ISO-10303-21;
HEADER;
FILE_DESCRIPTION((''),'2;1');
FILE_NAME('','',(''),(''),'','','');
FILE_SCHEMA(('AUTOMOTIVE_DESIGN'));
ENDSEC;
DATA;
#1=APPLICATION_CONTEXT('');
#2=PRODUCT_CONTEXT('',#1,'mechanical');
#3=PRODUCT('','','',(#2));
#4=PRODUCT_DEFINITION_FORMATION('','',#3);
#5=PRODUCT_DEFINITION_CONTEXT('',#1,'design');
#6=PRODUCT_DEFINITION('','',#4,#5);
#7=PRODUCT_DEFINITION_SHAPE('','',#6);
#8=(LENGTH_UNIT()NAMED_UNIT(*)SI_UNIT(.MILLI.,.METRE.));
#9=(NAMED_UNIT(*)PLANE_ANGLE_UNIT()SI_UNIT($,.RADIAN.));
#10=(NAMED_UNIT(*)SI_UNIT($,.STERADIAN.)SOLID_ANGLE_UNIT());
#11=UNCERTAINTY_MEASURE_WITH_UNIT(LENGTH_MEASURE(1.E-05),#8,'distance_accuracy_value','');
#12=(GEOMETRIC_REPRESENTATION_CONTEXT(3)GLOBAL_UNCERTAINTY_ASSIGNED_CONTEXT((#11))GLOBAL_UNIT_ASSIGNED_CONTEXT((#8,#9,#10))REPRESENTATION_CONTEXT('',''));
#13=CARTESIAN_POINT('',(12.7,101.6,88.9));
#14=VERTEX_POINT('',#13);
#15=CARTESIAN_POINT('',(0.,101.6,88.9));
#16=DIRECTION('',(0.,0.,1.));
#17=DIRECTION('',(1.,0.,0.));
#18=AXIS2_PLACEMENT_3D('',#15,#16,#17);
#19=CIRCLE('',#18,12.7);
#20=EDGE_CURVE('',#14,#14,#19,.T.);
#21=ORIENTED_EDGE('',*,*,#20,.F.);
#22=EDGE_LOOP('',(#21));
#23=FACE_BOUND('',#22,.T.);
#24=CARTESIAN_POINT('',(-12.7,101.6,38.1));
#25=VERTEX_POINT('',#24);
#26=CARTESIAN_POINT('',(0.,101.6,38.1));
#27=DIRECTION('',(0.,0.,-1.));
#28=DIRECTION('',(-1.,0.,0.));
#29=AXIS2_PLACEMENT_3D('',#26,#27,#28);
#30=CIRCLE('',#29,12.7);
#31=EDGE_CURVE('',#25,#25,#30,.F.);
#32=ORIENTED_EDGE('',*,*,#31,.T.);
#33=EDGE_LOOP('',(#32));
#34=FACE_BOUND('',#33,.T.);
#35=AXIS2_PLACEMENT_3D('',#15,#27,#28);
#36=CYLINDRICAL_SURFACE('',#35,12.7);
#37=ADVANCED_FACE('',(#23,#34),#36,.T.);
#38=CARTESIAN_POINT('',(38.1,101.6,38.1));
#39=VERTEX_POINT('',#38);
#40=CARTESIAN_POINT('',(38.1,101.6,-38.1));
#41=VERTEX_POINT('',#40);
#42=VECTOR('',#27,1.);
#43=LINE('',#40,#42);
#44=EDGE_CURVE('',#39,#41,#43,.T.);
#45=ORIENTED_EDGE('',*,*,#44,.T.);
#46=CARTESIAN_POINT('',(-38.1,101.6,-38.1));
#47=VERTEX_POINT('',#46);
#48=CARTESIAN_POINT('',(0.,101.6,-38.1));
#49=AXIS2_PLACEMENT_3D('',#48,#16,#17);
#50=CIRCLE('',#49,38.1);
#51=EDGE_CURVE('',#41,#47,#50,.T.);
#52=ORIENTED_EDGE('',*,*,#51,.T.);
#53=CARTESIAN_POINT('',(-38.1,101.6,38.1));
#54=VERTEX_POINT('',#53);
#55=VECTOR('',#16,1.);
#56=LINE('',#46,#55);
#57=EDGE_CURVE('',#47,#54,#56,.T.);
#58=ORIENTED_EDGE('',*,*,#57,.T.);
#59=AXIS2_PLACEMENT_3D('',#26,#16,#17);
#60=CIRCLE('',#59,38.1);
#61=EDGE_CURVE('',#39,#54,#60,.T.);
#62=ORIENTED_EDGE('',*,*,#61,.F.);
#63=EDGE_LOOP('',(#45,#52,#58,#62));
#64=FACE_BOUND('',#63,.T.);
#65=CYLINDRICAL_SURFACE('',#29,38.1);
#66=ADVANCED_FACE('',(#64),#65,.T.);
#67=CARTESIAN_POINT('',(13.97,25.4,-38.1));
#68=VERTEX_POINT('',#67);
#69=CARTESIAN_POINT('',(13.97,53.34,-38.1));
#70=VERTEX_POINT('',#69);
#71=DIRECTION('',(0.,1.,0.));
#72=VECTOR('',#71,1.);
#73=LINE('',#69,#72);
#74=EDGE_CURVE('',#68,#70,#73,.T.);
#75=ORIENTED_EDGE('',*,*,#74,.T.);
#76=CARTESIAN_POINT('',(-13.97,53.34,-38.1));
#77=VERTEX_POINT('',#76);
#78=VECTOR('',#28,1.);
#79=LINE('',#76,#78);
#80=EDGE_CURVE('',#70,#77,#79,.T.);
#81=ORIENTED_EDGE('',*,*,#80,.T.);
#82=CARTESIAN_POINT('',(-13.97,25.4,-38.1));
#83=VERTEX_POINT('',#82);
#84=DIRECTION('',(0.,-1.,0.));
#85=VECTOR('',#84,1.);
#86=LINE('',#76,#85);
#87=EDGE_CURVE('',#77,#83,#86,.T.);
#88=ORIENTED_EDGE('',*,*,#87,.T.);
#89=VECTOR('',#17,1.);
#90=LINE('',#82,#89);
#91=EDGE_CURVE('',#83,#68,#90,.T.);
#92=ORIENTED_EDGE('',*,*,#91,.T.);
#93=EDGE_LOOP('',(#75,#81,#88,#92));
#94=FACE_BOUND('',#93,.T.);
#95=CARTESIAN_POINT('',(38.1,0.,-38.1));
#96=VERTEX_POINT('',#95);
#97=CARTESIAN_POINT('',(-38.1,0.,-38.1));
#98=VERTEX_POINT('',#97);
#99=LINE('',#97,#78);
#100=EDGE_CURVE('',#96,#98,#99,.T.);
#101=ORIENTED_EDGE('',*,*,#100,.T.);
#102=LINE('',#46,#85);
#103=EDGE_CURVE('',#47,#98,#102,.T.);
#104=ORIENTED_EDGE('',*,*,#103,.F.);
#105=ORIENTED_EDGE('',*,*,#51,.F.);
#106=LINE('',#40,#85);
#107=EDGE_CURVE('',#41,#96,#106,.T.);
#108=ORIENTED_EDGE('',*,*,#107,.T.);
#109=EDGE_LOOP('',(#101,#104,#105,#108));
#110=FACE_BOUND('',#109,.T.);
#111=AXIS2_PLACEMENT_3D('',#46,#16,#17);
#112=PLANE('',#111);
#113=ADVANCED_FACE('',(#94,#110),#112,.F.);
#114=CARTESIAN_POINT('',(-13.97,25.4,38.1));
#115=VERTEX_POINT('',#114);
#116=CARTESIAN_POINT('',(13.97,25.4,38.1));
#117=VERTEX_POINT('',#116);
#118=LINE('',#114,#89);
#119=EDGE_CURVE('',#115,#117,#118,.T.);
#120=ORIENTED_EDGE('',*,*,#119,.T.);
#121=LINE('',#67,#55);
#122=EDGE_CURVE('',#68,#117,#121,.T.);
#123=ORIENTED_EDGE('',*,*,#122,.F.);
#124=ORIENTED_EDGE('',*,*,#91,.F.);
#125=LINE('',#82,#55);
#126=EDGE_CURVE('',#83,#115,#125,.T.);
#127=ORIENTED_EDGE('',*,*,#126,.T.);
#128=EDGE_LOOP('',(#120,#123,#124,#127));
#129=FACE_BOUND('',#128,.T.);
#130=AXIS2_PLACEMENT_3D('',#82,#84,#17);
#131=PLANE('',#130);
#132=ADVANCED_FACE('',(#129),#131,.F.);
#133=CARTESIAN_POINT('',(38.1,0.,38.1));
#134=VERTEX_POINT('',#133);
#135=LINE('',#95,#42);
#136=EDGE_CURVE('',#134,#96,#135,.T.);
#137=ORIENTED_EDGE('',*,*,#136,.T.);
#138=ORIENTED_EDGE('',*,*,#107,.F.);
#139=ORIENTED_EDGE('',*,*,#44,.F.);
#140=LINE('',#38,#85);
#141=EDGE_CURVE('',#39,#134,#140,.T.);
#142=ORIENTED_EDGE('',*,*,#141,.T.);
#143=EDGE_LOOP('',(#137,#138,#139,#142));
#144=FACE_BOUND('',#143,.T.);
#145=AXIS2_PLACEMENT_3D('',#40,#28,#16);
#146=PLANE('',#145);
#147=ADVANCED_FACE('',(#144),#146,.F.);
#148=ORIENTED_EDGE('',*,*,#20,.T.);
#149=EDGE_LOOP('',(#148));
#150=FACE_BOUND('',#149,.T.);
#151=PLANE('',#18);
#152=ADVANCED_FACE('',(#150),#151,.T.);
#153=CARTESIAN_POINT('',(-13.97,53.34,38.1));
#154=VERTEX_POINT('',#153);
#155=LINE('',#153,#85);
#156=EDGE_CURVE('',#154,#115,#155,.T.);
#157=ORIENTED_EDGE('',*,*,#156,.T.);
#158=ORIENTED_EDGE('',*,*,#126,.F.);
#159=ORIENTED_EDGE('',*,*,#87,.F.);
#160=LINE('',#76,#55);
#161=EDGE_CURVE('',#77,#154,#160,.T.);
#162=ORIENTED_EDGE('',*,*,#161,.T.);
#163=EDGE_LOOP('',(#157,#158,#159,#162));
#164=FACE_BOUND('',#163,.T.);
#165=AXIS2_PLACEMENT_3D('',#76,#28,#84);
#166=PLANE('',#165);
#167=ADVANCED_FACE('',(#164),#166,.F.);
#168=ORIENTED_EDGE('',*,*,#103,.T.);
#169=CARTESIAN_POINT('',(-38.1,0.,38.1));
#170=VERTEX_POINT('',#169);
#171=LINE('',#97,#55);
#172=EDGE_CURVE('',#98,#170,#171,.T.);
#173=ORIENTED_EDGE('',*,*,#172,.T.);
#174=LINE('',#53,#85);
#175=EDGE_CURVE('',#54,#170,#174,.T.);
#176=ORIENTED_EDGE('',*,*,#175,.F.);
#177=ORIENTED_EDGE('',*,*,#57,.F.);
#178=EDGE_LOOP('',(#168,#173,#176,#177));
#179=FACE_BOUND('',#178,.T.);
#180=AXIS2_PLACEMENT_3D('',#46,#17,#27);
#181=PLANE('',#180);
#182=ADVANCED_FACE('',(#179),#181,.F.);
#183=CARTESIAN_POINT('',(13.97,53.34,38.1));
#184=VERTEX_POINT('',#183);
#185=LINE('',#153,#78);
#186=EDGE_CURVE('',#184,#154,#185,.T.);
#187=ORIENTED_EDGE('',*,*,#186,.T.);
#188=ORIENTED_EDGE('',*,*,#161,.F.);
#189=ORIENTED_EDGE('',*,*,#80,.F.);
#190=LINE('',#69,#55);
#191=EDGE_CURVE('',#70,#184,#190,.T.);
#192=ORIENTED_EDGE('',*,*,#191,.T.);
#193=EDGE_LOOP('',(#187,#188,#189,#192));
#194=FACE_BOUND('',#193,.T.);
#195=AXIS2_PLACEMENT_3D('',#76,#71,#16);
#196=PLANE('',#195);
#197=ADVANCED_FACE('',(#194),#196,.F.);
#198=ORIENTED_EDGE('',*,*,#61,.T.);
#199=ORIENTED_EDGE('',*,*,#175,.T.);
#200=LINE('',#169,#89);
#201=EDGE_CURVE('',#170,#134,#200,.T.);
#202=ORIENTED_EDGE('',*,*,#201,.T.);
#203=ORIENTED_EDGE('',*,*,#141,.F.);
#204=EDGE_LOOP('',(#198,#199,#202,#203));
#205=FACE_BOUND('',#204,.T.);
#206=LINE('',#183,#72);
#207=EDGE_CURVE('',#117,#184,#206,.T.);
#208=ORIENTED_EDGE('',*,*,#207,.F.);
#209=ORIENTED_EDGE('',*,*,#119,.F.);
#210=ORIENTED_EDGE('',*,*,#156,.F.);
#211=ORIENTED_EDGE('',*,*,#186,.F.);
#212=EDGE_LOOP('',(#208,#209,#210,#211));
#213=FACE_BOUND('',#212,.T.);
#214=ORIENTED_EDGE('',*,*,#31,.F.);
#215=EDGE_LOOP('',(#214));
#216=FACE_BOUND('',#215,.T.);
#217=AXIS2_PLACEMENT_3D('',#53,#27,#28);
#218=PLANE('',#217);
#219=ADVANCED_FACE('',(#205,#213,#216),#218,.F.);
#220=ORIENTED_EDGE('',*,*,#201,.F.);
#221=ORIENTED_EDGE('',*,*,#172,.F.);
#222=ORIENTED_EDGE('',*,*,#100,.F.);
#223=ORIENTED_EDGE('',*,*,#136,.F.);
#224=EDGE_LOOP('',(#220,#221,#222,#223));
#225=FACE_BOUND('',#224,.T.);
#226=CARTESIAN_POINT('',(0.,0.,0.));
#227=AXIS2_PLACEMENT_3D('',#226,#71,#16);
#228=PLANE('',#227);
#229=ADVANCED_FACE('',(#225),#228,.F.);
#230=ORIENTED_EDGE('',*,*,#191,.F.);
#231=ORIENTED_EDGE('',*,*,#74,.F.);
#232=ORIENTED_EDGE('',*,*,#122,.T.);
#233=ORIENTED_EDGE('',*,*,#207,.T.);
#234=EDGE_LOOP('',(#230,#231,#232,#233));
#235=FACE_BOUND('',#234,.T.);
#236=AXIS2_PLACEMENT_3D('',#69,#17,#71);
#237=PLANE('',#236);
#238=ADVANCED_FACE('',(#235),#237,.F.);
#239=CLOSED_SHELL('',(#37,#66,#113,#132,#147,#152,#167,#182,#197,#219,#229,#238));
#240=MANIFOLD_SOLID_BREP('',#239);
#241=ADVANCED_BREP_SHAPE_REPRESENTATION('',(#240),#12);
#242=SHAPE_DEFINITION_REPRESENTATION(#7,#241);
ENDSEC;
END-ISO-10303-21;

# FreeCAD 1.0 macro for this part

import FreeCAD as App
import Part
import Sketcher
from FreeCAD import Vector
Q = App.Units.Quantity

doc = App.newDocument("Part")
body = doc.addObject("PartDesign::Body", "Body")

# Sketch on XZ plane
sketch1 = doc.addObject("Sketcher::SketchObject", "Sketch")
body.addObject(sketch1)
sketch1.AttachmentSupport = (doc.XZ_Plane, [""])
sketch1.MapMode = "FlatFace"
sketch1.addGeometry(Part.LineSegment(Vector(-38, -38, 0), Vector(-38, 38, 0)), False)
sketch1.addGeometry(Part.LineSegment(Vector(-38, 38, 0), Vector(38, 38, 0)), False)
sketch1.addGeometry(Part.LineSegment(Vector(38, 38, 0), Vector(38, -38, 0)), False)
sketch1.addGeometry(Part.LineSegment(Vector(38, -38, 0), Vector(-38, -38, 0)), False)
sketch1.addConstraint(Sketcher.Constraint("Coincident", 0, 2, 1, 1))
sketch1.addConstraint(Sketcher.Constraint("Coincident", 1, 2, 2, 1))
sketch1.addConstraint(Sketcher.Constraint("Coincident", 2, 2, 3, 1))
sketch1.addConstraint(Sketcher.Constraint("Coincident", 3, 2, 0, 1))
sketch1.addConstraint(Sketcher.Constraint("Vertical", 0))
sketch1.addConstraint(Sketcher.Constraint("Horizontal", 1))
sketch1.addConstraint(Sketcher.Constraint("Vertical", 2))
sketch1.addConstraint(Sketcher.Constraint("Horizontal", 3))
sketch1.addConstraint(Sketcher.Constraint("Symmetric", 0, 2, 2, 2, -1, 1))
sketch1.addConstraint(Sketcher.Constraint("Equal", 3, 0))
sketch1.addConstraint(Sketcher.Constraint("DistanceX", 1, 1, 1, 2, Q("3 in")))
pad1 = doc.addObject("PartDesign::Pad", "Pad")
body.addObject(pad1)
pad1.Profile = sketch1
pad1.Length = Q("4 in")
pad1.Reversed = True

# Sketch on XY plane
sketch2 = doc.addObject("Sketcher::SketchObject", "Sketch001")
body.addObject(sketch2)
sketch2.AttachmentSupport = (doc.XY_Plane, [""])
sketch2.MapMode = "FlatFace"
sketch2.addGeometry(Part.Circle(Vector(0, 102, 0), Vector(0, 0, 1), 38), False)
sketch2.addConstraint(Sketcher.Constraint("PointOnObject", 0, 3, -2))
sketch2.addConstraint(Sketcher.Constraint("Diameter", 0, Q("3 in")))
sketch2.addConstraint(Sketcher.Constraint("DistanceY", -1, 1, 0, 3, Q("4 in")))
pad2 = doc.addObject("PartDesign::Pad", "Pad001")
body.addObject(pad2)
pad2.Profile = sketch2
pad2.Type = "TwoLengths"
pad2.Length = Q("1.5 in")
pad2.Length2 = Q("1.5 in")

# Sketch on XY plane
sketch3 = doc.addObject("Sketcher::SketchObject", "Sketch002")
body.addObject(sketch3)
sketch3.AttachmentSupport = (doc.XY_Plane, [""])
sketch3.MapMode = "FlatFace"
sketch3.addGeometry(Part.LineSegment(Vector(-14, 53, 0), Vector(-14, 25, 0)), False)
sketch3.addGeometry(Part.LineSegment(Vector(-14, 25, 0), Vector(14, 25, 0)), False)
sketch3.addGeometry(Part.LineSegment(Vector(14, 25, 0), Vector(14, 53, 0)), False)
sketch3.addGeometry(Part.LineSegment(Vector(14, 53, 0), Vector(-14, 53, 0)), False)
sketch3.addConstraint(Sketcher.Constraint("Coincident", 0, 2, 1, 1))
sketch3.addConstraint(Sketcher.Constraint("Coincident", 1, 2, 2, 1))
sketch3.addConstraint(Sketcher.Constraint("Coincident", 2, 2, 3, 1))
sketch3.addConstraint(Sketcher.Constraint("Coincident", 3, 2, 0, 1))
sketch3.addConstraint(Sketcher.Constraint("Vertical", 0))
sketch3.addConstraint(Sketcher.Constraint("Horizontal", 1))
sketch3.addConstraint(Sketcher.Constraint("Vertical", 2))
sketch3.addConstraint(Sketcher.Constraint("Horizontal", 3))
sketch3.addConstraint(Sketcher.Constraint("Equal", 3, 0))
sketch3.addConstraint(Sketcher.Constraint("DistanceX", 1, 1, 1, 2, Q("1.1 in")))
sketch3.addConstraint(Sketcher.Constraint("DistanceY", -1, 1, 0, 2, Q("1 in")))
sketch3.addConstraint(Sketcher.Constraint("DistanceX", 0, 2, -1, 1, Q("0.55 in")))
pocket1 = doc.addObject("PartDesign::Pocket", "Pocket")
body.addObject(pocket1)
pocket1.Profile = sketch3
pocket1.Type = "ThroughAll"
pocket1.Midplane = True

# Sketch on XY plane
sketch4 = doc.addObject("Sketcher::SketchObject", "Sketch003")
body.addObject(sketch4)
sketch4.AttachmentSupport = (doc.XY_Plane, [""])
sketch4.MapMode = "FlatFace"
sketch4.addGeometry(Part.Circle(Vector(0, 102, 0), Vector(0, 0, 1), 13), False)
sketch4.addConstraint(Sketcher.Constraint("PointOnObject", 0, 3, -2))
sketch4.addConstraint(Sketcher.Constraint("Diameter", 0, Q("1 in")))
sketch4.addConstraint(Sketcher.Constraint("DistanceY", -1, 1, 0, 3, Q("4 in")))
pad3 = doc.addObject("PartDesign::Pad", "Pad002")
body.addObject(pad3)
pad3.Profile = sketch4
pad3.Length = Q("3.5 in")

doc.recompute()
